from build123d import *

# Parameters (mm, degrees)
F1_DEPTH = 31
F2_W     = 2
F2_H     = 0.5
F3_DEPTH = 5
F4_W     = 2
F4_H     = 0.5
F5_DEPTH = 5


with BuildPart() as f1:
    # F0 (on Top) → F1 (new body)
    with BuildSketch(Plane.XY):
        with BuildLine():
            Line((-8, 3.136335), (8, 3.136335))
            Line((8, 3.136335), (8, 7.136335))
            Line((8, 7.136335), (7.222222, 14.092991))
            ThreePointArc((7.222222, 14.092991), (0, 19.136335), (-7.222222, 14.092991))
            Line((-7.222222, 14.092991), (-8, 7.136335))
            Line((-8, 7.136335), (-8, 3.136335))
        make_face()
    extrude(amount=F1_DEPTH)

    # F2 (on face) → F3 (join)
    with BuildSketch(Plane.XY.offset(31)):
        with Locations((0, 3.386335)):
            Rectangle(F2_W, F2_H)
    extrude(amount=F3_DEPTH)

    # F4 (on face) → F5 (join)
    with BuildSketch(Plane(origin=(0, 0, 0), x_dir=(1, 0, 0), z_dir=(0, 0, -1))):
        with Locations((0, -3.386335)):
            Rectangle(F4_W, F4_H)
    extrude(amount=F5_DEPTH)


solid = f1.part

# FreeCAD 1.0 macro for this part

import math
import FreeCAD as App
import Part
import Sketcher


def add_polygon(sketch, points):
    """Adds a closed chain of lines whose ends are joined by coincident constraints."""
    first, n = sketch.GeometryCount, len(points)
    for a, b in zip(points, points[1:] + points[:1]):
        sketch.addGeometry(Part.LineSegment(App.Vector(*a, 0), App.Vector(*b, 0)), False)
    for i in range(n):
        sketch.addConstraint(Sketcher.Constraint("Coincident", first + i, 2, first + (i + 1) % n, 1))

doc = App.newDocument("Part")
body = doc.addObject("PartDesign::Body", "Body")

# Sketch on XY plane
sketch1 = body.newObject("Sketcher::SketchObject", "Sketch")
sketch1.AttachmentSupport = (doc.getObject("XY_Plane"), [""])
sketch1.MapMode = "FlatFace"
sketch1.addGeometry([
    Part.LineSegment(App.Vector(-8, 3.1, 0), App.Vector(8, 3.1, 0)),  # 0
    Part.LineSegment(App.Vector(8, 3.1, 0), App.Vector(8, 7.1, 0)),  # 1
    Part.LineSegment(App.Vector(8, 7.1, 0), App.Vector(7.2, 14.1, 0)),  # 2
    Part.ArcOfCircle(Part.Circle(App.Vector(0, 11.4, 0), App.Vector(0, 0, 1), 7.7), math.radians(20), math.radians(160)),  # 3
    Part.LineSegment(App.Vector(-7.2, 14.1, 0), App.Vector(-8, 7.1, 0)),  # 4
    Part.LineSegment(App.Vector(-8, 7.1, 0), App.Vector(-8, 3.1, 0)),  # 5
], False)
sketch1.addConstraint([
    Sketcher.Constraint("Coincident", 0, 2, 1, 1),
    Sketcher.Constraint("Coincident", 1, 2, 2, 1),
    Sketcher.Constraint("Coincident", 2, 2, 3, 1),
    Sketcher.Constraint("Coincident", 3, 2, 4, 1),
    Sketcher.Constraint("Coincident", 4, 2, 5, 1),
    Sketcher.Constraint("Coincident", 5, 2, 0, 1),
    Sketcher.Constraint("Horizontal", 0),
    Sketcher.Constraint("Vertical", 1),
    Sketcher.Constraint("Vertical", 5),
    Sketcher.Constraint("Symmetric", 2, 2, 3, 2, -2),
    Sketcher.Constraint("Symmetric", 1, 2, 4, 2, -2),
    Sketcher.Constraint("DistanceX", 0, 1, 0, 2, 16.0),
    Sketcher.Constraint("DistanceY", 1, 1, 1, 2, 4.0),
    Sketcher.Constraint("Distance", 2, 7.0),
    Sketcher.Constraint("Radius", 3, 7.692893),
    Sketcher.Constraint("DistanceY", -1, 1, 2, 2, 14.092991),
    Sketcher.Constraint("DistanceX", 3, 2, -1, 1, 7.222222),
])
pad1 = body.newObject("PartDesign::Pad", "Pad")
pad1.Profile = sketch1
pad1.Length = 31

# Sketch on XY plane
sketch2 = body.newObject("Sketcher::SketchObject", "Sketch001")
sketch2.AttachmentSupport = (doc.getObject("XY_Plane"), [""])
sketch2.MapMode = "FlatFace"
sketch2.AttachmentOffset = App.Placement(App.Vector(0, 0, 31), App.Rotation())
add_polygon(sketch2, [(-1, 3.6), (-1, 3.1), (1, 3.1), (1, 3.6)])  # lines 0-3
sketch2.addConstraint([
    Sketcher.Constraint("Vertical", 0),
    Sketcher.Constraint("Horizontal", 1),
    Sketcher.Constraint("Vertical", 2),
    Sketcher.Constraint("Horizontal", 3),
    Sketcher.Constraint("DistanceX", 1, 1, 1, 2, 2.0),
    Sketcher.Constraint("DistanceY", 0, 2, 0, 1, 0.5),
    Sketcher.Constraint("DistanceX", 0, 2, -1, 1, 1.0),
    Sketcher.Constraint("DistanceY", -1, 1, 0, 2, 3.136335),
])
pad2 = body.newObject("PartDesign::Pad", "Pad001")
pad2.Profile = sketch2
pad2.Length = 5

# Sketch on XY plane
sketch3 = body.newObject("Sketcher::SketchObject", "Sketch002")
sketch3.AttachmentSupport = (doc.getObject("XY_Plane"), [""])
sketch3.MapMode = "FlatFace"
add_polygon(sketch3, [(-1, 3.1), (-1, 3.6), (1, 3.6), (1, 3.1)])  # lines 0-3
sketch3.addConstraint([
    Sketcher.Constraint("Vertical", 0),
    Sketcher.Constraint("Horizontal", 1),
    Sketcher.Constraint("Vertical", 2),
    Sketcher.Constraint("Horizontal", 3),
    Sketcher.Constraint("DistanceX", 1, 1, 1, 2, 2.0),
    Sketcher.Constraint("DistanceY", 0, 1, 0, 2, 0.5),
    Sketcher.Constraint("DistanceX", 0, 2, -1, 1, 1.0),
    Sketcher.Constraint("DistanceY", -1, 1, 0, 2, 3.636335),
])
pad3 = body.newObject("PartDesign::Pad", "Pad002")
pad3.Profile = sketch3
pad3.Length = 5
pad3.Reversed = True

doc.recompute()
